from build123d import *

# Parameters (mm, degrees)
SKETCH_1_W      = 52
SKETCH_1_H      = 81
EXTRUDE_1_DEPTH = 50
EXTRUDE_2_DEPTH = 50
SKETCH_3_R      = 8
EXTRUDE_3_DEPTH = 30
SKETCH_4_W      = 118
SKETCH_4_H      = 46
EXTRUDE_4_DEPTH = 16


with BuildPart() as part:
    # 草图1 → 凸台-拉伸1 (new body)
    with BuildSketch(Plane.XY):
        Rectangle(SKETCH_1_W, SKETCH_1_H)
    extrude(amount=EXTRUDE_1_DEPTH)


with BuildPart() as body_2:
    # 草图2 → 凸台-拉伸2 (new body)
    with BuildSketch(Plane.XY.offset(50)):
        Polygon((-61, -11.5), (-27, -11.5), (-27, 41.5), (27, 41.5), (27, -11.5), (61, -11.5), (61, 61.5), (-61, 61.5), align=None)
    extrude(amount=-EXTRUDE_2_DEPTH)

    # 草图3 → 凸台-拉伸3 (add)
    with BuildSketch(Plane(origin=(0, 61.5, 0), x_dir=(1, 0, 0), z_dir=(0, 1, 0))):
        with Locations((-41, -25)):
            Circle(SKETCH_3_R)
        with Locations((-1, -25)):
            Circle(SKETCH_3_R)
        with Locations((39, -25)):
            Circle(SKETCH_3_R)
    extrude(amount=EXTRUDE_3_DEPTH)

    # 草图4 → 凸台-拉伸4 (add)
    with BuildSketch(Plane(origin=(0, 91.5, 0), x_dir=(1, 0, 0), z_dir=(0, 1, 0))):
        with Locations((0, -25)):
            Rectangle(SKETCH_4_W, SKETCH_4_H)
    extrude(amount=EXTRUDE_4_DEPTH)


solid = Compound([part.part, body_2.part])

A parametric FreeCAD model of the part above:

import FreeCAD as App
import Part
import Sketcher
from FreeCAD import Vector

doc = App.newDocument("Part")
params = doc.addObject("Spreadsheet::Sheet", "Params")
for row, (alias, value) in enumerate([
    ("sketch1_width", "52 mm"),
    ("sketch1_height", "81 mm"),
    ("pad1_length", "50 mm"),
    ("sketch2_width", "34 mm"),
    ("sketch2_width2", "54 mm"),
    ("sketch2_height", "53 mm"),
    ("sketch2_height2", "73 mm"),
    ("pad2_length", "50 mm"),
    ("sketch3_diameter", "16 mm"),
    ("pad3_length", "30 mm"),
    ("sketch4_width", "118 mm"),
    ("sketch4_height", "46 mm"),
    ("pad4_length", "16 mm"),
], start=1):
    params.set(f"A{row}", alias)
    params.set(f"B{row}", "=" + value)
    params.setAlias(f"B{row}", alias)

body = doc.addObject("PartDesign::Body", "Body")

# Sketch on XY plane
sketch1 = body.newObject("Sketcher::SketchObject", "Sketch")
sketch1.AttachmentSupport = (doc.getObject("XY_Plane"), [""])
sketch1.MapMode = "FlatFace"
sketch1.addGeometry([
    Part.LineSegment(Vector(-26, 40.5, 0), Vector(-26, -40.5, 0)),
    Part.LineSegment(Vector(-26, -40.5, 0), Vector(26, -40.5, 0)),
    Part.LineSegment(Vector(26, -40.5, 0), Vector(26, 40.5, 0)),
    Part.LineSegment(Vector(26, 40.5, 0), Vector(-26, 40.5, 0)),
], False)
sketch1.addConstraint([
    Sketcher.Constraint("Coincident", 0, 2, 1, 1),
    Sketcher.Constraint("Coincident", 1, 2, 2, 1),
    Sketcher.Constraint("Coincident", 2, 2, 3, 1),
    Sketcher.Constraint("Coincident", 3, 2, 0, 1),
    Sketcher.Constraint("Vertical", 0),
    Sketcher.Constraint("Horizontal", 1),
    Sketcher.Constraint("Vertical", 2),
    Sketcher.Constraint("Horizontal", 3),
    Sketcher.Constraint("Symmetric", 0, 2, 2, 2, -1, 1),
    Sketcher.Constraint("DistanceX", 1, 1, 1, 2, 52.0),
    Sketcher.Constraint("DistanceY", 0, 2, 0, 1, 81.0),
])
sketch1.setExpression("Constraints[9]", "Params.sketch1_width")
sketch1.setExpression("Constraints[10]", "Params.sketch1_height")
pad1 = body.newObject("PartDesign::Pad", "Pad")
pad1.Profile = sketch1
pad1.setExpression("Length", "Params.pad1_length")
body2 = doc.addObject("PartDesign::Body", "Body001")

# Sketch on XY plane
sketch2 = body2.newObject("Sketcher::SketchObject", "Sketch001")
sketch2.AttachmentSupport = (doc.getObject("XY_Plane001"), [""])
sketch2.MapMode = "FlatFace"
sketch2.AttachmentOffset = App.Placement(Vector(0, 0, 50), App.Rotation())
sketch2.addGeometry([
    Part.LineSegment(Vector(-61, -11.5, 0), Vector(-27, -11.5, 0)),  # 0
    Part.LineSegment(Vector(-27, -11.5, 0), Vector(-27, 41.5, 0)),  # 1
    Part.LineSegment(Vector(-27, 41.5, 0), Vector(27, 41.5, 0)),  # 2
    Part.LineSegment(Vector(27, 41.5, 0), Vector(27, -11.5, 0)),  # 3
    Part.LineSegment(Vector(27, -11.5, 0), Vector(61, -11.5, 0)),  # 4
    Part.LineSegment(Vector(61, -11.5, 0), Vector(61, 61.5, 0)),  # 5
    Part.LineSegment(Vector(61, 61.5, 0), Vector(-61, 61.5, 0)),  # 6
    Part.LineSegment(Vector(-61, 61.5, 0), Vector(-61, -11.5, 0)),  # 7
], False)
sketch2.addConstraint([
    Sketcher.Constraint("Coincident", 0, 2, 1, 1),
    Sketcher.Constraint("Coincident", 1, 2, 2, 1),
    Sketcher.Constraint("Coincident", 2, 2, 3, 1),
    Sketcher.Constraint("Coincident", 3, 2, 4, 1),
    Sketcher.Constraint("Coincident", 4, 2, 5, 1),
    Sketcher.Constraint("Coincident", 5, 2, 6, 1),
    Sketcher.Constraint("Coincident", 6, 2, 7, 1),
    Sketcher.Constraint("Coincident", 7, 2, 0, 1),
    Sketcher.Constraint("Horizontal", 0),
    Sketcher.Constraint("Vertical", 1),
    Sketcher.Constraint("Horizontal", 2),
    Sketcher.Constraint("Vertical", 3),
    Sketcher.Constraint("Horizontal", 4),
    Sketcher.Constraint("Vertical", 5),
    Sketcher.Constraint("Horizontal", 6),
    Sketcher.Constraint("Vertical", 7),
    Sketcher.Constraint("Symmetric", 0, 2, 3, 2, -2),
    Sketcher.Constraint("Equal", 0, 4),
    Sketcher.Constraint("DistanceX", 0, 1, 0, 2, 34.0),
    Sketcher.Constraint("DistanceX", 2, 1, 2, 2, 54.0),
    Sketcher.Constraint("DistanceY", 1, 1, 1, 2, 53.0),
    Sketcher.Constraint("DistanceY", 5, 1, 5, 2, 73.0),
    Sketcher.Constraint("DistanceY", 0, 2, -1, 1, 11.5),
])
sketch2.setExpression("Constraints[18]", "Params.sketch2_width")
sketch2.setExpression("Constraints[19]", "Params.sketch2_width2")
sketch2.setExpression("Constraints[20]", "Params.sketch2_height")
sketch2.setExpression("Constraints[21]", "Params.sketch2_height2")
pad2 = body2.newObject("PartDesign::Pad", "Pad001")
pad2.Profile = sketch2
pad2.setExpression("Length", "Params.pad2_length")
pad2.Reversed = True

# Sketch on XZ plane
sketch3 = body2.newObject("Sketcher::SketchObject", "Sketch002")
sketch3.AttachmentSupport = (doc.getObject("XZ_Plane001"), [""])
sketch3.MapMode = "FlatFace"
sketch3.AttachmentOffset = App.Placement(Vector(0, 0, -61.5), App.Rotation())
sketch3.addGeometry([
    Part.Circle(Vector(-41, 25, 0), Vector(0, 0, 1), 8),
    Part.Circle(Vector(-1, 25, 0), Vector(0, 0, 1), 8),
    Part.Circle(Vector(39, 25, 0), Vector(0, 0, 1), 8),
], False)
sketch3.addConstraint([
    Sketcher.Constraint("Equal", 0, 1),
    Sketcher.Constraint("Equal", 1, 2),
    Sketcher.Constraint("Horizontal", 0, 3, 1, 3),
    Sketcher.Constraint("Horizontal", 1, 3, 2, 3),
    Sketcher.Constraint("Diameter", 0, 16.0),
    Sketcher.Constraint("DistanceX", 0, 3, -1, 1, 41.0),
    Sketcher.Constraint("DistanceY", -1, 1, 0, 3, 25.0),
    Sketcher.Constraint("DistanceX", 1, 3, -1, 1, 1.0),
    Sketcher.Constraint("DistanceX", -1, 1, 2, 3, 39.0),
])
sketch3.setExpression("Constraints[4]", "Params.sketch3_diameter")
pad3 = body2.newObject("PartDesign::Pad", "Pad002")
pad3.Profile = sketch3
pad3.setExpression("Length", "Params.pad3_length")
pad3.Reversed = True

# Sketch on XZ plane
sketch4 = body2.newObject("Sketcher::SketchObject", "Sketch003")
sketch4.AttachmentSupport = (doc.getObject("XZ_Plane001"), [""])
sketch4.MapMode = "FlatFace"
sketch4.AttachmentOffset = App.Placement(Vector(0, 0, -91.5), App.Rotation())
sketch4.addGeometry([
    Part.LineSegment(Vector(-59, 2, 0), Vector(-59, 48, 0)),
    Part.LineSegment(Vector(-59, 48, 0), Vector(59, 48, 0)),
    Part.LineSegment(Vector(59, 48, 0), Vector(59, 2, 0)),
    Part.LineSegment(Vector(59, 2, 0), Vector(-59, 2, 0)),
], False)
sketch4.addConstraint([
    Sketcher.Constraint("Coincident", 0, 2, 1, 1),
    Sketcher.Constraint("Coincident", 1, 2, 2, 1),
    Sketcher.Constraint("Coincident", 2, 2, 3, 1),
    Sketcher.Constraint("Coincident", 3, 2, 0, 1),
    Sketcher.Constraint("Vertical", 0),
    Sketcher.Constraint("Horizontal", 1),
    Sketcher.Constraint("Vertical", 2),
    Sketcher.Constraint("Horizontal", 3),
    Sketcher.Constraint("DistanceX", 1, 1, 1, 2, 118.0),
    Sketcher.Constraint("DistanceY", 0, 1, 0, 2, 46.0),
    Sketcher.Constraint("DistanceX", 0, 2, -1, 1, 59.0),
    Sketcher.Constraint("DistanceY", -1, 1, 0, 2, 48.0),
])
sketch4.setExpression("Constraints[8]", "Params.sketch4_width")
sketch4.setExpression("Constraints[9]", "Params.sketch4_height")
pad4 = body2.newObject("PartDesign::Pad", "Pad003")
pad4.Profile = sketch4
pad4.setExpression("Length", "Params.pad4_length")
pad4.Reversed = True

doc.recompute()
